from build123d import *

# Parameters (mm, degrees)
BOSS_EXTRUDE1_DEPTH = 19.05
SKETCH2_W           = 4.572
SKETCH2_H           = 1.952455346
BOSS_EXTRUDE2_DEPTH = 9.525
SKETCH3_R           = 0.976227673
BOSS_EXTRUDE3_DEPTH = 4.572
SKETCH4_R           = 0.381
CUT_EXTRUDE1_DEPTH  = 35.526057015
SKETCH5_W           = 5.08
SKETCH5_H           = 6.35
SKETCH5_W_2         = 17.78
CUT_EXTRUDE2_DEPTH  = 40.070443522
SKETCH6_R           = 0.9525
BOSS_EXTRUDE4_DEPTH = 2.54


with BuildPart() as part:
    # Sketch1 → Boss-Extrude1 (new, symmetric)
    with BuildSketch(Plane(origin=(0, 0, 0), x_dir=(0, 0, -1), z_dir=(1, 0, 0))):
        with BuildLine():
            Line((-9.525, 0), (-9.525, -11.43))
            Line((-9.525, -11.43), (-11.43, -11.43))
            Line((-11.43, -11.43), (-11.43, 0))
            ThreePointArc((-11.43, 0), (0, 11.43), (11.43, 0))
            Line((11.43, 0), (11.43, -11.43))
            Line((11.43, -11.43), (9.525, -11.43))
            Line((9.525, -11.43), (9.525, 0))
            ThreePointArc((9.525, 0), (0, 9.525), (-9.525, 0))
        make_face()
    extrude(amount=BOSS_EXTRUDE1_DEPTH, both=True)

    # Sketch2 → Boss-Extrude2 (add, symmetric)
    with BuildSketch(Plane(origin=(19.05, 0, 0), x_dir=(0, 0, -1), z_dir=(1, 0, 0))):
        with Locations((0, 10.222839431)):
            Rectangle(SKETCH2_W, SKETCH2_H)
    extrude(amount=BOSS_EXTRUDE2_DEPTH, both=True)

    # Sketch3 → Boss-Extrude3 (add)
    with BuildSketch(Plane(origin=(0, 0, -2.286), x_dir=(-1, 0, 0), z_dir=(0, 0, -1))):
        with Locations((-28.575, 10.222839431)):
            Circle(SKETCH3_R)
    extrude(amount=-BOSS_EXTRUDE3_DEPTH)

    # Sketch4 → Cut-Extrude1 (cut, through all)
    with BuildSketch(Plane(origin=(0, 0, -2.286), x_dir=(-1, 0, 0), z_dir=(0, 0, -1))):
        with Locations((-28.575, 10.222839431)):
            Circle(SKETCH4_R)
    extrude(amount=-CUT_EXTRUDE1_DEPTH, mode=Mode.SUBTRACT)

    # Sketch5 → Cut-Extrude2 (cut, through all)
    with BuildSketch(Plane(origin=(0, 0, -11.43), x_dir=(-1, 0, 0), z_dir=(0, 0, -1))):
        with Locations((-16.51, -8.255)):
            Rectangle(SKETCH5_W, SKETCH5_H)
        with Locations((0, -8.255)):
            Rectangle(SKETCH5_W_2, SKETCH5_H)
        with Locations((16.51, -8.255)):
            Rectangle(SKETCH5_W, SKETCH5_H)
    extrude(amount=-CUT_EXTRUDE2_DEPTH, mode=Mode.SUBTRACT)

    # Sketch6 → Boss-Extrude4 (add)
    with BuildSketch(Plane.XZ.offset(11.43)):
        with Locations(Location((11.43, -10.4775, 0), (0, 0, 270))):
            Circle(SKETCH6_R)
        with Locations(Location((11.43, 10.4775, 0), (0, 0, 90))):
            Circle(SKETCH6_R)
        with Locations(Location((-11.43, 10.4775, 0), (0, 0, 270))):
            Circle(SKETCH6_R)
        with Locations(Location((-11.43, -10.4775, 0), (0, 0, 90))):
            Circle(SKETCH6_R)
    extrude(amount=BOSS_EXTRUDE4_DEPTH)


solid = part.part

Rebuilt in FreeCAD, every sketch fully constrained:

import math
import FreeCAD as App
import Part
import Sketcher
Q = App.Units.Quantity


def add_polygon(sketch, points):
    """Adds a closed chain of lines whose ends are joined by coincident constraints."""
    first, n = sketch.GeometryCount, len(points)
    for a, b in zip(points, points[1:] + points[:1]):
        sketch.addGeometry(Part.LineSegment(App.Vector(*a, 0), App.Vector(*b, 0)), False)
    for i in range(n):
        sketch.addConstraint(Sketcher.Constraint("Coincident", first + i, 2, first + (i + 1) % n, 1))

doc = App.newDocument("Part")
params = doc.addObject("Spreadsheet::Sheet", "Params")
for row, (alias, value) in enumerate([
    ("sketch1_radius", "0.45 in"),
    ("sketch1_radius2", "0.375 in"),
    ("sketch1_width", "0.45 in"),
    ("pad1_length", "1.5 in"),
    ("sketch2_height", "0.18 in"),
    ("pad2_length", "0.75 in"),
    ("pad3_length", "0.18 in"),
    ("sketch4_diameter", "0.03 in"),
    ("sketch5_width", "0.2 in"),
    ("sketch5_width2", "0.7 in"),
    ("sketch5_height", "0.25 in"),
    ("sketch6_diameter", "0.075 in"),
    ("pad4_length", "0.1 in"),
], start=1):
    params.set(f"A{row}", alias)
    params.set(f"B{row}", "=" + value)
    params.setAlias(f"B{row}", alias)

body = doc.addObject("PartDesign::Body", "Body")

sketch1 = body.newObject("Sketcher::SketchObject", "Sketch")
sketch1.AttachmentSupport = (doc.getObject("YZ_Plane"), [""])
sketch1.MapMode = "FlatFace"
sketch1.addGeometry([
    Part.LineSegment(App.Vector(-11.4, 9.5, 0), App.Vector(0, 9.5, 0)),
    Part.ArcOfCircle(Part.Circle(App.Vector(0, 0, 0), App.Vector(0, 0, 1), 9.5), math.radians(-90), math.radians(90)),
    Part.LineSegment(App.Vector(0, -9.5, 0), App.Vector(-11.4, -9.5, 0)),
    Part.LineSegment(App.Vector(-11.4, -9.5, 0), App.Vector(-11.4, -11.4, 0)),
    Part.LineSegment(App.Vector(-11.4, -11.4, 0), App.Vector(0, -11.4, 0)),
    Part.ArcOfCircle(Part.Circle(App.Vector(0, 0, 0), App.Vector(0, 0, 1), 11.4), math.radians(-90), math.radians(90)),
    Part.LineSegment(App.Vector(0, 11.4, 0), App.Vector(-11.4, 11.4, 0)),
    Part.LineSegment(App.Vector(-11.4, 11.4, 0), App.Vector(-11.4, 9.5, 0)),
], False)
sketch1.addConstraint([
    Sketcher.Constraint("Tangent", 0, 2, 1, 2),
    Sketcher.Constraint("Tangent", 1, 1, 2, 1),
    Sketcher.Constraint("Coincident", 2, 2, 3, 1),
    Sketcher.Constraint("Coincident", 3, 2, 4, 1),
    Sketcher.Constraint("Tangent", 4, 2, 5, 1),
    Sketcher.Constraint("Tangent", 5, 2, 6, 1),
    Sketcher.Constraint("Coincident", 6, 2, 7, 1),
    Sketcher.Constraint("Coincident", 7, 2, 0, 1),
    Sketcher.Constraint("Horizontal", 0),
    Sketcher.Constraint("Horizontal", 2),
    Sketcher.Constraint("Vertical", 3),
    Sketcher.Constraint("Horizontal", 4),
    Sketcher.Constraint("Horizontal", 6),
    Sketcher.Constraint("Vertical", 7),
    Sketcher.Constraint("Coincident", 1, 3, -1, 1),
    Sketcher.Constraint("Coincident", 5, 3, -1, 1),
    Sketcher.Constraint("Vertical", 3, 2, 6, 2),
    Sketcher.Constraint("Radius", 5, Q("0.45 in")),
    Sketcher.Constraint("Radius", 1, Q("0.375 in")),
    Sketcher.Constraint("DistanceX", 0, 1, 0, 2, Q("0.45 in")),
])
sketch1.setExpression("Constraints[17]", "Params.sketch1_radius")
sketch1.setExpression("Constraints[18]", "Params.sketch1_radius2")
sketch1.setExpression("Constraints[19]", "Params.sketch1_width")
pad1 = body.newObject("PartDesign::Pad", "Pad")
pad1.Profile = sketch1
pad1.setExpression("Length", "Params.pad1_length")
pad1.Midplane = True

sketch2 = body.newObject("Sketcher::SketchObject", "Sketch001")
sketch2.AttachmentSupport = (doc.getObject("YZ_Plane"), [""])
sketch2.MapMode = "FlatFace"
sketch2.AttachmentOffset = App.Placement(App.Vector(0, 0, 0.75 * 25.4), App.Rotation())
add_polygon(sketch2, [(11.2, 2.3), (9.2, 2.3), (9.2, -2.3), (11.2, -2.3)])
sketch2.addConstraint([
    Sketcher.Constraint("Horizontal", 0),
    Sketcher.Constraint("Vertical", 1),
    Sketcher.Constraint("Horizontal", 2),
    Sketcher.Constraint("Vertical", 3),
    Sketcher.Constraint("DistanceY", 1, 2, 1, 1, Q("0.18 in")),
    Sketcher.Constraint("DistanceY", -1, 1, 0, 2, Q("0.09 in")),
    Sketcher.Constraint("DistanceX", 0, 2, 0, 1, 1.952455),
    Sketcher.Constraint("DistanceX", -1, 1, 0, 2, 9.246612),
])
sketch2.setExpression("Constraints[8]", "Params.sketch2_height")
pad2 = body.newObject("PartDesign::Pad", "Pad001")
pad2.Profile = sketch2
pad2.setExpression("Length", "Params.pad2_length")
pad2.Midplane = True

sketch3 = body.newObject("Sketcher::SketchObject", "Sketch002")
sketch3.AttachmentSupport = (doc.getObject("XY_Plane"), [""])
sketch3.MapMode = "FlatFace"
sketch3.AttachmentOffset = App.Placement(App.Vector(0, 0, -0.09 * 25.4), App.Rotation())
sketch3.addGeometry(Part.Circle(App.Vector(28.6, 10.2, 0), App.Vector(0, 0, 1), 1), False)
sketch3.addConstraint([
    Sketcher.Constraint("DistanceX", -1, 1, 0, 3, Q("1.125 in")),
    Sketcher.Constraint("Diameter", 0, 1.952455),
    Sketcher.Constraint("DistanceY", -1, 1, 0, 3, 10.222839),
])
pad3 = body.newObject("PartDesign::Pad", "Pad002")
pad3.Profile = sketch3
pad3.setExpression("Length", "Params.pad3_length")

sketch4 = body.newObject("Sketcher::SketchObject", "Sketch003")
sketch4.AttachmentSupport = (doc.getObject("XY_Plane"), [""])
sketch4.MapMode = "FlatFace"
sketch4.AttachmentOffset = App.Placement(App.Vector(0, 0, -0.09 * 25.4), App.Rotation())
sketch4.addGeometry(Part.Circle(App.Vector(28.57, 10.22, 0), App.Vector(0, 0, 1), 0.38), False)
sketch4.addConstraint([
    Sketcher.Constraint("Diameter", 0, Q("0.03 in")),
    Sketcher.Constraint("DistanceX", -1, 1, 0, 3, Q("1.125 in")),
    Sketcher.Constraint("DistanceY", -1, 1, 0, 3, 10.222839),
])
sketch4.setExpression("Constraints[0]", "Params.sketch4_diameter")
pocket1 = body.newObject("PartDesign::Pocket", "Pocket")
pocket1.Profile = sketch4
pocket1.Type = "ThroughAll"
pocket1.Reversed = True

sketch5 = body.newObject("Sketcher::SketchObject", "Sketch004")
sketch5.AttachmentSupport = (doc.getObject("XY_Plane"), [""])
sketch5.MapMode = "FlatFace"
sketch5.AttachmentOffset = App.Placement(App.Vector(0, 0, -0.45 * 25.4), App.Rotation())
add_polygon(sketch5, [(19, -5), (19, -11), (14, -11), (14, -5)])
add_polygon(sketch5, [(9, -5), (9, -11), (-9, -11), (-9, -5)])
add_polygon(sketch5, [(-14, -5), (-14, -11), (-19, -11), (-19, -5)])
sketch5.addConstraint([
    Sketcher.Constraint("Vertical", 0),
    Sketcher.Constraint("Horizontal", 1),
    Sketcher.Constraint("Vertical", 2),
    Sketcher.Constraint("Horizontal", 3),
    Sketcher.Constraint("Vertical", 4),
    Sketcher.Constraint("Horizontal", 5),
    Sketcher.Constraint("Vertical", 6),
    Sketcher.Constraint("Horizontal", 7),
    Sketcher.Constraint("Vertical", 8),
    Sketcher.Constraint("Horizontal", 9),
    Sketcher.Constraint("Vertical", 10),
    Sketcher.Constraint("Horizontal", 11),
    Sketcher.Constraint("Symmetric", 1, 2, 8, 2, -2),
    Sketcher.Constraint("Symmetric", 3, 2, 10, 2, -2),
    Sketcher.Constraint("Horizontal", 1, 2, 4, 2),
    Sketcher.Constraint("Horizontal", 3, 2, 6, 2),
    Sketcher.Constraint("DistanceX", 1, 2, 1, 1, Q("0.2 in")),
    Sketcher.Constraint("DistanceX", 5, 2, 5, 1, Q("0.7 in")),
    Sketcher.Constraint("DistanceY", 0, 2, 0, 1, Q("0.25 in")),
    Sketcher.Constraint("DistanceY", 2, 2, -1, 1, Q("0.2 in")),
    Sketcher.Constraint("DistanceX", 4, 2, 1, 2, Q("0.2 in")),
    Sketcher.Constraint("DistanceX", 8, 2, 5, 2, Q("0.2 in")),
])
sketch5.setExpression("Constraints[28]", "Params.sketch5_width")
sketch5.setExpression("Constraints[29]", "Params.sketch5_width2")
sketch5.setExpression("Constraints[30]", "Params.sketch5_height")
pocket2 = body.newObject("PartDesign::Pocket", "Pocket001")
pocket2.Profile = sketch5
pocket2.Type = "ThroughAll"
pocket2.Reversed = True

sketch6 = body.newObject("Sketcher::SketchObject", "Sketch005")
sketch6.AttachmentSupport = (doc.getObject("XZ_Plane"), [""])
sketch6.MapMode = "FlatFace"
sketch6.AttachmentOffset = App.Placement(App.Vector(0, 0, 0.45 * 25.4), App.Rotation())
sketch6.addGeometry([
    Part.Circle(App.Vector(11.4, -10.5, 0), App.Vector(0, 0, 1), 1),
    Part.Circle(App.Vector(11.4, 10.5, 0), App.Vector(0, 0, 1), 1),
    Part.Circle(App.Vector(-11.4, 10.5, 0), App.Vector(0, 0, 1), 1),
    Part.Circle(App.Vector(-11.4, -10.5, 0), App.Vector(0, 0, 1), 1),
], False)
sketch6.addConstraint([
    Sketcher.Constraint("Equal", 0, 1),
    Sketcher.Constraint("Equal", 1, 2),
    Sketcher.Constraint("Equal", 2, 3),
    Sketcher.Constraint("Symmetric", 0, 3, 2, 3, -1, 1),
    Sketcher.Constraint("Symmetric", 1, 3, 3, 3, -1, 1),
    Sketcher.Constraint("Symmetric", 1, 3, 2, 3, -2),
    Sketcher.Constraint("Diameter", 0, Q("0.075 in")),
    Sketcher.Constraint("DistanceX", 2, 3, 1, 3, Q("0.9 in")),
    Sketcher.Constraint("DistanceY", 0, 3, 1, 3, Q("0.825 in")),
])
sketch6.setExpression("Constraints[6]", "Params.sketch6_diameter")
pad4 = body.newObject("PartDesign::Pad", "Pad003")
pad4.Profile = sketch6
pad4.setExpression("Length", "Params.pad4_length")

doc.recompute()
